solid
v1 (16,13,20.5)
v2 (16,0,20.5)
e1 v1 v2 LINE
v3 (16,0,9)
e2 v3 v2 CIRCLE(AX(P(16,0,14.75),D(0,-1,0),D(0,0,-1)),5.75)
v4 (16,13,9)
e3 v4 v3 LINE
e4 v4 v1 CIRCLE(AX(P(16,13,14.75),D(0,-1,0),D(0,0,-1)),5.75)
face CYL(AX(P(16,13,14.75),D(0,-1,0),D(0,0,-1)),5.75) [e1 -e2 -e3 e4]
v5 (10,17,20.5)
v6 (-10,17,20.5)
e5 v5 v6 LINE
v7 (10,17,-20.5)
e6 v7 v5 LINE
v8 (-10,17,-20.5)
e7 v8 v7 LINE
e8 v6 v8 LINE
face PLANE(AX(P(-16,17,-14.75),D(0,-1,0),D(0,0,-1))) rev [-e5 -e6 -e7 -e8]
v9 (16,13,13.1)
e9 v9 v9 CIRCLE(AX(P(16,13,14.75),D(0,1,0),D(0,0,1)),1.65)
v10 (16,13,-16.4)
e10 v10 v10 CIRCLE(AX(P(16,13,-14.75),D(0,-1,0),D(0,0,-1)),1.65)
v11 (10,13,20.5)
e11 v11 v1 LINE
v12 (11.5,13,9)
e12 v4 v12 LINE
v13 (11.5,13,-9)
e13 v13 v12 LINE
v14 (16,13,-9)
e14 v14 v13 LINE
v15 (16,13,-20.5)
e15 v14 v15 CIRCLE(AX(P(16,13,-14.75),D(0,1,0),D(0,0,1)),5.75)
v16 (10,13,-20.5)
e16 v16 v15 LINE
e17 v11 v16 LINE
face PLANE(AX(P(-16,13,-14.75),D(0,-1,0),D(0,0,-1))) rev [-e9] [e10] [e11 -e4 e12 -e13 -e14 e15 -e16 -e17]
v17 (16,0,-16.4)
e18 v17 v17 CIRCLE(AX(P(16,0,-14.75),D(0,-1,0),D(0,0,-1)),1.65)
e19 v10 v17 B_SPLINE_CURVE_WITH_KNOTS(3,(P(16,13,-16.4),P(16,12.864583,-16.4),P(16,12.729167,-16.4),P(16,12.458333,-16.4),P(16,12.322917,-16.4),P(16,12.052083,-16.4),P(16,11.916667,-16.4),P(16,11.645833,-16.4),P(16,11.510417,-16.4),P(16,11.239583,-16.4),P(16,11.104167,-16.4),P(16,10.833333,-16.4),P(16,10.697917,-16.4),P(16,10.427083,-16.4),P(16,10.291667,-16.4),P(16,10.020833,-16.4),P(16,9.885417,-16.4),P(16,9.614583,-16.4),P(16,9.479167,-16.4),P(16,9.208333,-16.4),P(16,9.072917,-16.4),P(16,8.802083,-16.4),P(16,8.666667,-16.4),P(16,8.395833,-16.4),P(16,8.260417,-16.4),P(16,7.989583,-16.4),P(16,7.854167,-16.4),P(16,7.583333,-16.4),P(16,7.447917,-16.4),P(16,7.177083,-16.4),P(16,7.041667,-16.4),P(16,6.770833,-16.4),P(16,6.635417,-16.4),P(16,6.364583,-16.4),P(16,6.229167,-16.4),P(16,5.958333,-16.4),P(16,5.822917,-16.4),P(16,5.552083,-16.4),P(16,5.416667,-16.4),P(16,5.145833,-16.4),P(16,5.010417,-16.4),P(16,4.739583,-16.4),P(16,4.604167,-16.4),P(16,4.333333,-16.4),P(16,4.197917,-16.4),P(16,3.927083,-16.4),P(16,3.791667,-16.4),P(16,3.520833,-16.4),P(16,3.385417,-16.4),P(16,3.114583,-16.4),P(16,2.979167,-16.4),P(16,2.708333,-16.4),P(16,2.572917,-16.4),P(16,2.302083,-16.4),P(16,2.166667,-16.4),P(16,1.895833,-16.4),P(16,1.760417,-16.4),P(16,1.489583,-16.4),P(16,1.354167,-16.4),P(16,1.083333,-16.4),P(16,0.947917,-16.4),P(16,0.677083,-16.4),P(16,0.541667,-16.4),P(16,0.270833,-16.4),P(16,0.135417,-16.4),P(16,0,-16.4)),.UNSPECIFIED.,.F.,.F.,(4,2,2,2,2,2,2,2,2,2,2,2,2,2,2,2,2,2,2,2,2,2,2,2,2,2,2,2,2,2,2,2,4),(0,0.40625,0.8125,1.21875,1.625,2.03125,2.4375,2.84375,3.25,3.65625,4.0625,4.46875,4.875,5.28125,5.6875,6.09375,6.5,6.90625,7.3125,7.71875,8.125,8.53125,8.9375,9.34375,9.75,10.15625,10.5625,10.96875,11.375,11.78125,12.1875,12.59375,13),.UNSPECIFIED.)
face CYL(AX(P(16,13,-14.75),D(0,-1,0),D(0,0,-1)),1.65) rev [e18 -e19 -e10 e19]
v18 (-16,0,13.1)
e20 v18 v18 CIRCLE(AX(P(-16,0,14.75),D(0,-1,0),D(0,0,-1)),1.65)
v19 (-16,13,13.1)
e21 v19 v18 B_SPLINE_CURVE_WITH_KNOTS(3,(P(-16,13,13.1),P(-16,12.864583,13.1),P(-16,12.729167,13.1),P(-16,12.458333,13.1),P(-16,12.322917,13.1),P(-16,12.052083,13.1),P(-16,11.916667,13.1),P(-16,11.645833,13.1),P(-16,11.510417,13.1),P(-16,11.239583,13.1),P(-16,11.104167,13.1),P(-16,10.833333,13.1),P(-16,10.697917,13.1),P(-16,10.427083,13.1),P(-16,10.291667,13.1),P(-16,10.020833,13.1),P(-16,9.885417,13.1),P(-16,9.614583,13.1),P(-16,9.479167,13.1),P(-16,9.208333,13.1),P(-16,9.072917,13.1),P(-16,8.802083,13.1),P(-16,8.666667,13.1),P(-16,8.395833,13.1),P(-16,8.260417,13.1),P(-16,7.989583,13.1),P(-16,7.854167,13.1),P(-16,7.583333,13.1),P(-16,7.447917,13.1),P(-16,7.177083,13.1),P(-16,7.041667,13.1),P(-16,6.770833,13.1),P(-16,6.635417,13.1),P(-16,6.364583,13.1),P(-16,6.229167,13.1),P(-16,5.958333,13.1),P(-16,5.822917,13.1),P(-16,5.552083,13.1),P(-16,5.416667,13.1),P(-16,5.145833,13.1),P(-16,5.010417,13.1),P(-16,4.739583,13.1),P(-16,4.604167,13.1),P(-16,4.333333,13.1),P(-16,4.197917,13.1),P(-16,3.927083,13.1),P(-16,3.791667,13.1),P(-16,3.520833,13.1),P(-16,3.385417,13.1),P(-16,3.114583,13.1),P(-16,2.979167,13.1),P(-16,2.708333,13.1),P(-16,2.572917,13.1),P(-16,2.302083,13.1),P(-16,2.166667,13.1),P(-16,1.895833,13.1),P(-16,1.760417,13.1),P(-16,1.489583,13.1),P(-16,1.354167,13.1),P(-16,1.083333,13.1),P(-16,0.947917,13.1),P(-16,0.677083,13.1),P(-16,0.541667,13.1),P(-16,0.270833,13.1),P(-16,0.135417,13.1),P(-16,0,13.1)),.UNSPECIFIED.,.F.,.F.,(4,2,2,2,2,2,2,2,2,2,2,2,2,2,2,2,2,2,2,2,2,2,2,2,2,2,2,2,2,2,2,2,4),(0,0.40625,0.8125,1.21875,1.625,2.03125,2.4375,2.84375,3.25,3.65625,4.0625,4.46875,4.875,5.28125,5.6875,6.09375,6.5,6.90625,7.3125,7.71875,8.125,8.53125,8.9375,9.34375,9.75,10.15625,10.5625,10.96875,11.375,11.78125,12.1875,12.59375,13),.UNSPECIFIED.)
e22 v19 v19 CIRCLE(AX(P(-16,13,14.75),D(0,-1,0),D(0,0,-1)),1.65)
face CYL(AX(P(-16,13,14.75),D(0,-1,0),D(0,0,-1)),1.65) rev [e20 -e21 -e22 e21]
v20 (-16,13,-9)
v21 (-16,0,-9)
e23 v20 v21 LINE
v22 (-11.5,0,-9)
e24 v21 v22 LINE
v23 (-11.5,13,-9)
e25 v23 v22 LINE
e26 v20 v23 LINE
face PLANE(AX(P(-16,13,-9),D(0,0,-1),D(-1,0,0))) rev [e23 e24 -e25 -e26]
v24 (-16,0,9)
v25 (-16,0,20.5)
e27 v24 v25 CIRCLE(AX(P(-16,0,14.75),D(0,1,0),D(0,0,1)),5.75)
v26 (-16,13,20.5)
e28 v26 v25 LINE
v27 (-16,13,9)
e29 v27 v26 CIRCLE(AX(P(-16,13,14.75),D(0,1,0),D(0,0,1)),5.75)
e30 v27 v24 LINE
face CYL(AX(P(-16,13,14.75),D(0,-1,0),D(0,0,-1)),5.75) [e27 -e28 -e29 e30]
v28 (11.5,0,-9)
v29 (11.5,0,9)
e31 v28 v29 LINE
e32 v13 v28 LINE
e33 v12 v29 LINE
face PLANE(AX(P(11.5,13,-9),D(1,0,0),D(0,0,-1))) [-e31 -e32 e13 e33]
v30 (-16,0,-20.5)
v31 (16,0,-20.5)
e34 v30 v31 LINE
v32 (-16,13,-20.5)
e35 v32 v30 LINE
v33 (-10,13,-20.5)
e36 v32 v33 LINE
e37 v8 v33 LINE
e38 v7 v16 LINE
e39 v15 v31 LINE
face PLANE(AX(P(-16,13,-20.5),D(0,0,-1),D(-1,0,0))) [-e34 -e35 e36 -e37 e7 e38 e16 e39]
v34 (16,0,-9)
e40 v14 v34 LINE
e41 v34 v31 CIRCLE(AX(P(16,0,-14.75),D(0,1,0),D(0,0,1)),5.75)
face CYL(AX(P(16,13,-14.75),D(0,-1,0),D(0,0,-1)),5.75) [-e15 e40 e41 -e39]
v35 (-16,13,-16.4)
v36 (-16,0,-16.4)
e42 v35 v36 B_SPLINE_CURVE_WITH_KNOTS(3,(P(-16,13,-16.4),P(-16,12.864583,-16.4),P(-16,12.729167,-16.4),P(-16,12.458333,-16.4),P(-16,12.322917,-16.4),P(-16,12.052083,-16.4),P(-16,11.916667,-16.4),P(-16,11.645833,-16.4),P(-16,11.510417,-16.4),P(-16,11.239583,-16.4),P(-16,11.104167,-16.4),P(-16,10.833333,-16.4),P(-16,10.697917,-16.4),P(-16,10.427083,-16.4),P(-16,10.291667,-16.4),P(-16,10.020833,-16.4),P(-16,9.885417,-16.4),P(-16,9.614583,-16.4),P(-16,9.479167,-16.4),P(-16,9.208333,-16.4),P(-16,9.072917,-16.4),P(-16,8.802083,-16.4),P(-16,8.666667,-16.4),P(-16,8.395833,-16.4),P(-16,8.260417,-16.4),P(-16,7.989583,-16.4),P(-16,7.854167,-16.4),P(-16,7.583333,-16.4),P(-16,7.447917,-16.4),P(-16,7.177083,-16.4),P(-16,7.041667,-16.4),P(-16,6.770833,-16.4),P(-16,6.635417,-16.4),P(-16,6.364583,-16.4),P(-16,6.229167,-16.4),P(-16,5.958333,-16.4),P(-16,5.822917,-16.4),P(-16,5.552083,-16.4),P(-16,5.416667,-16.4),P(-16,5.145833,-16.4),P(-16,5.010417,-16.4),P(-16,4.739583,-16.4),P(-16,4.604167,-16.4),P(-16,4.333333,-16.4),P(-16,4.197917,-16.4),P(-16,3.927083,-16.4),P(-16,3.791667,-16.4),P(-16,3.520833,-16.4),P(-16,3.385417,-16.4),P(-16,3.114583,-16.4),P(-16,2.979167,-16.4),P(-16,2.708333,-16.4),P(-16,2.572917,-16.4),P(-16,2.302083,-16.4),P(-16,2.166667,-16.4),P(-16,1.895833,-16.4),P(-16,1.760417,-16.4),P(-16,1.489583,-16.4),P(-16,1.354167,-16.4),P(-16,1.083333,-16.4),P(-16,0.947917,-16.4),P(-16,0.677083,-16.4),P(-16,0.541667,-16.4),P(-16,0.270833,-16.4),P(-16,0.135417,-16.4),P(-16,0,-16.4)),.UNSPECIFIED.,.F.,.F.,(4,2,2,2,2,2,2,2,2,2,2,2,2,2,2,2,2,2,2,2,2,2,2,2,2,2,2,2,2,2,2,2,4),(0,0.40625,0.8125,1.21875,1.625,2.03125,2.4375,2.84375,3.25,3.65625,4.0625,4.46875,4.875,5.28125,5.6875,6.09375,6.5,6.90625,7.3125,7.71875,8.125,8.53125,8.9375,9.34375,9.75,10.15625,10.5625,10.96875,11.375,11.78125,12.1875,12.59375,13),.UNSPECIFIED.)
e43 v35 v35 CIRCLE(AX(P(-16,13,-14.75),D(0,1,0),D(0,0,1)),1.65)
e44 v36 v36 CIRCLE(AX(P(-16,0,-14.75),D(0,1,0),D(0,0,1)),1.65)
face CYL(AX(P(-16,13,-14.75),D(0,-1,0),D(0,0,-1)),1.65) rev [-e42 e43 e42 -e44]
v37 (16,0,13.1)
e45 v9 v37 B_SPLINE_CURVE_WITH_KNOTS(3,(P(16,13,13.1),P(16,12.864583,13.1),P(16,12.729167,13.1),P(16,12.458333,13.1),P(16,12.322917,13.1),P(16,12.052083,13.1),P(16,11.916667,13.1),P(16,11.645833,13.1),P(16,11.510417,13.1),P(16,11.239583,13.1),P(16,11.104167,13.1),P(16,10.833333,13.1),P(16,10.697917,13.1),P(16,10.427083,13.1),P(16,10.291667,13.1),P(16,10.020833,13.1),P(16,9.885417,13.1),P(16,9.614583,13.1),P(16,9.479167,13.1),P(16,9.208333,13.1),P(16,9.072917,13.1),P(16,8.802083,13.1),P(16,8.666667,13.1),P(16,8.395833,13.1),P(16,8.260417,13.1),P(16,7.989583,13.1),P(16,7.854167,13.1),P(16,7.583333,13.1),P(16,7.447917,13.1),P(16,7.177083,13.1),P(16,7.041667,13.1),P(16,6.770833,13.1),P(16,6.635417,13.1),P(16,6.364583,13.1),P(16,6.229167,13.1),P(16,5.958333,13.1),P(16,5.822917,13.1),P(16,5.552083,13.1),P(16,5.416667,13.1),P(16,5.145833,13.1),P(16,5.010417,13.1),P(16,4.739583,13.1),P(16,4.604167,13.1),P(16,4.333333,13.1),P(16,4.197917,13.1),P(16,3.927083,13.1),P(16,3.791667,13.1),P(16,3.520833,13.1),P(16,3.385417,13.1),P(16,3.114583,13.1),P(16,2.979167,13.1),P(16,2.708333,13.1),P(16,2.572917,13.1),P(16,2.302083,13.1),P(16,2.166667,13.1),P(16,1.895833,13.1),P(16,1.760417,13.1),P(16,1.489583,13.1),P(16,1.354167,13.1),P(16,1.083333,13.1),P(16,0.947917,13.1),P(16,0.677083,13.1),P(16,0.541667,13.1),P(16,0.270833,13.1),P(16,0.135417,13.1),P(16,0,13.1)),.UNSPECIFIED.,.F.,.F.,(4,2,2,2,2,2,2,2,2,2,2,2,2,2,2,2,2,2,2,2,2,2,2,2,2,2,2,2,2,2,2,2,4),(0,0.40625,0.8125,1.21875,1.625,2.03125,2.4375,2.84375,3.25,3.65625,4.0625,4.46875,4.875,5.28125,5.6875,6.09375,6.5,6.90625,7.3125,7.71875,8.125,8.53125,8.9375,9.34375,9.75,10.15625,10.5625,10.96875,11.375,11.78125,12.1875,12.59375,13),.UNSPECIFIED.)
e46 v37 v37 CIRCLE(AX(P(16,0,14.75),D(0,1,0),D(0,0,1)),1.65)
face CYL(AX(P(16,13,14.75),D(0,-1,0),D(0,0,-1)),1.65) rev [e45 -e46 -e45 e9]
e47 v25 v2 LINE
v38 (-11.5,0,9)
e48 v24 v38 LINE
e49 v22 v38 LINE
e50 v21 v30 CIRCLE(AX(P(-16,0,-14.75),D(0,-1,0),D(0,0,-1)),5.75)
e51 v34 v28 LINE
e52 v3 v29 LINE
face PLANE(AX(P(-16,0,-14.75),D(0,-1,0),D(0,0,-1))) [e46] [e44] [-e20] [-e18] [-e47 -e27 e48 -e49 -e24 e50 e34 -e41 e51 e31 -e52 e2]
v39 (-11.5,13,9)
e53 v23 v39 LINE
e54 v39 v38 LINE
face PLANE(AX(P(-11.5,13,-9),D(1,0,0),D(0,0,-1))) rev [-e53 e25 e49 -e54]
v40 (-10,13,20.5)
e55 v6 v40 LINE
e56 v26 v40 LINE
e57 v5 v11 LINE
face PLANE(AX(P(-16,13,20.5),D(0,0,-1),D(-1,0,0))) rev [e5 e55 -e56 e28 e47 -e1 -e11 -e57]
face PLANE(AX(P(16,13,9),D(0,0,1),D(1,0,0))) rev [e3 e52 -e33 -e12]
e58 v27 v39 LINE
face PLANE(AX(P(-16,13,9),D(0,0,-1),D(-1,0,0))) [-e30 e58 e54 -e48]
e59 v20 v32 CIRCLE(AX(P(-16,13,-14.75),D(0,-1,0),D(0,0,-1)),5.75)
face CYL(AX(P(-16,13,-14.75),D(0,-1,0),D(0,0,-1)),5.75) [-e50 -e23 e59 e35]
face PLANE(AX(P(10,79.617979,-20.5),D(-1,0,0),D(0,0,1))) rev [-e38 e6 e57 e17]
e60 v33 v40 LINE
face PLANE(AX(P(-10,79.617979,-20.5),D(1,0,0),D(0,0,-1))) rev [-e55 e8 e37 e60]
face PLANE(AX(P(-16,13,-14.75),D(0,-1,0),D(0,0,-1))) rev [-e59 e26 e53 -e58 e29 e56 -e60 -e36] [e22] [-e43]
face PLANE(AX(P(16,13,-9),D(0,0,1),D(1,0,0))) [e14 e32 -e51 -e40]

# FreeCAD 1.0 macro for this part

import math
import FreeCAD as App
import Part
import Sketcher


def add_polygon(sketch, points):
    """Adds a closed chain of lines whose ends are joined by coincident constraints."""
    first, n = sketch.GeometryCount, len(points)
    for a, b in zip(points, points[1:] + points[:1]):
        sketch.addGeometry(Part.LineSegment(App.Vector(*a, 0), App.Vector(*b, 0)), False)
    for i in range(n):
        sketch.addConstraint(Sketcher.Constraint("Coincident", first + i, 2, first + (i + 1) % n, 1))

doc = App.newDocument("Part")
body = doc.addObject("PartDesign::Body", "Body")

sketch1 = doc.addObject("Sketcher::SketchObject", "Sketch")
body.addObject(sketch1)
sketch1.AttachmentSupport = (doc.XZ_Plane, [""])
sketch1.MapMode = "FlatFace"
sketch1.addGeometry(Part.LineSegment(App.Vector(-16, -9, 0), App.Vector(-11.5, -9, 0)), False)
sketch1.addGeometry(Part.LineSegment(App.Vector(-11.5, -9, 0), App.Vector(-11.5, 9, 0)), False)
sketch1.addGeometry(Part.LineSegment(App.Vector(-11.5, 9, 0), App.Vector(-16, 9, 0)), False)
sketch1.addGeometry(Part.ArcOfCircle(Part.Circle(App.Vector(-16, 14.8, 0), App.Vector(0, 0, 1), 5.8), math.radians(90), math.radians(270)), False)
sketch1.addGeometry(Part.LineSegment(App.Vector(-16, 20.5, 0), App.Vector(16, 20.5, 0)), False)
sketch1.addGeometry(Part.ArcOfCircle(Part.Circle(App.Vector(16, 14.8, 0), App.Vector(0, 0, 1), 5.8), math.radians(-90), math.radians(90)), False)
sketch1.addGeometry(Part.LineSegment(App.Vector(16, 9, 0), App.Vector(11.5, 9, 0)), False)
sketch1.addGeometry(Part.LineSegment(App.Vector(11.5, 9, 0), App.Vector(11.5, -9, 0)), False)
sketch1.addGeometry(Part.LineSegment(App.Vector(11.5, -9, 0), App.Vector(16, -9, 0)), False)
sketch1.addGeometry(Part.ArcOfCircle(Part.Circle(App.Vector(16, -14.8, 0), App.Vector(0, 0, 1), 5.8), math.radians(-90), math.radians(90)), False)
sketch1.addGeometry(Part.LineSegment(App.Vector(16, -20.5, 0), App.Vector(-16, -20.5, 0)), False)
sketch1.addGeometry(Part.ArcOfCircle(Part.Circle(App.Vector(-16, -14.8, 0), App.Vector(0, 0, 1), 5.8), math.radians(90), math.radians(270)), False)
sketch1.addGeometry(Part.Circle(App.Vector(-16, 14.8, 0), App.Vector(0, 0, 1), 1.6), False)
sketch1.addGeometry(Part.Circle(App.Vector(16, 14.8, 0), App.Vector(0, 0, 1), 1.6), False)
sketch1.addGeometry(Part.Circle(App.Vector(-16, -14.8, 0), App.Vector(0, 0, 1), 1.6), False)
sketch1.addGeometry(Part.Circle(App.Vector(16, -14.8, 0), App.Vector(0, 0, 1), 1.6), False)
sketch1.addConstraint(Sketcher.Constraint("Coincident", 0, 2, 1, 1))
sketch1.addConstraint(Sketcher.Constraint("Coincident", 1, 2, 2, 1))
sketch1.addConstraint(Sketcher.Constraint("Tangent", 2, 2, 3, 2))
sketch1.addConstraint(Sketcher.Constraint("Tangent", 3, 1, 4, 1))
sketch1.addConstraint(Sketcher.Constraint("Tangent", 4, 2, 5, 2))
sketch1.addConstraint(Sketcher.Constraint("Tangent", 5, 1, 6, 1))
sketch1.addConstraint(Sketcher.Constraint("Coincident", 6, 2, 7, 1))
sketch1.addConstraint(Sketcher.Constraint("Coincident", 7, 2, 8, 1))
sketch1.addConstraint(Sketcher.Constraint("Tangent", 8, 2, 9, 2))
sketch1.addConstraint(Sketcher.Constraint("Tangent", 9, 1, 10, 1))
sketch1.addConstraint(Sketcher.Constraint("Tangent", 10, 2, 11, 2))
sketch1.addConstraint(Sketcher.Constraint("Tangent", 11, 1, 0, 1))
sketch1.addConstraint(Sketcher.Constraint("Horizontal", 0))
sketch1.addConstraint(Sketcher.Constraint("Vertical", 1))
sketch1.addConstraint(Sketcher.Constraint("Horizontal", 2))
sketch1.addConstraint(Sketcher.Constraint("Horizontal", 4))
sketch1.addConstraint(Sketcher.Constraint("Horizontal", 6))
sketch1.addConstraint(Sketcher.Constraint("Vertical", 7))
sketch1.addConstraint(Sketcher.Constraint("Horizontal", 8))
sketch1.addConstraint(Sketcher.Constraint("Horizontal", 10))
sketch1.addConstraint(Sketcher.Constraint("Coincident", 12, 3, 3, 3))
sketch1.addConstraint(Sketcher.Constraint("Coincident", 13, 3, 5, 3))
sketch1.addConstraint(Sketcher.Constraint("Coincident", 14, 3, 11, 3))
sketch1.addConstraint(Sketcher.Constraint("Coincident", 15, 3, 9, 3))
sketch1.addConstraint(Sketcher.Constraint("Equal", 3, 5))
sketch1.addConstraint(Sketcher.Constraint("Equal", 5, 9))
sketch1.addConstraint(Sketcher.Constraint("Equal", 9, 11))
sketch1.addConstraint(Sketcher.Constraint("Equal", 12, 13))
sketch1.addConstraint(Sketcher.Constraint("Equal", 13, 14))
sketch1.addConstraint(Sketcher.Constraint("Equal", 14, 15))
sketch1.addConstraint(Sketcher.Constraint("Symmetric", 3, 3, 9, 3, -1, 1))
sketch1.addConstraint(Sketcher.Constraint("Vertical", 5, 3, 9, 3))
sketch1.addConstraint(Sketcher.Constraint("Vertical", 3, 3, 11, 3))
sketch1.addConstraint(Sketcher.Constraint("Equal", 2, 6))
sketch1.addConstraint(Sketcher.Constraint("Diameter", 12, 3.3))
sketch1.addConstraint(Sketcher.Constraint("DistanceX", 4, 1, 4, 2, 32.0))
sketch1.addConstraint(Sketcher.Constraint("DistanceY", 1, 1, 1, 2, 18.0))
sketch1.addConstraint(Sketcher.Constraint("Radius", 3, 5.75))
sketch1.addConstraint(Sketcher.Constraint("DistanceX", 0, 1, 0, 2, 4.5))
pad1 = doc.addObject("PartDesign::Pad", "Pad")
body.addObject(pad1)
pad1.Profile = sketch1
pad1.Length = 13
pad1.Reversed = True

sketch2 = doc.addObject("Sketcher::SketchObject", "Sketch001")
body.addObject(sketch2)
sketch2.AttachmentSupport = (doc.XZ_Plane, [""])
sketch2.MapMode = "FlatFace"
sketch2.AttachmentOffset = App.Placement(App.Vector(0, 0, -13), App.Rotation())
add_polygon(sketch2, [(-10, -20), (-10, 20), (10, 20), (10, -20)])
sketch2.addConstraint(Sketcher.Constraint("Vertical", 0))
sketch2.addConstraint(Sketcher.Constraint("Horizontal", 1))
sketch2.addConstraint(Sketcher.Constraint("Vertical", 2))
sketch2.addConstraint(Sketcher.Constraint("Horizontal", 3))
sketch2.addConstraint(Sketcher.Constraint("Symmetric", 0, 2, 2, 2, -1, 1))
sketch2.addConstraint(Sketcher.Constraint("DistanceX", 1, 1, 1, 2, 20.0))
sketch2.addConstraint(Sketcher.Constraint("DistanceY", 0, 1, 0, 2, 41.0))
pad2 = doc.addObject("PartDesign::Pad", "Pad001")
body.addObject(pad2)
pad2.Profile = sketch2
pad2.Length = 4
pad2.Reversed = True

doc.recompute()
